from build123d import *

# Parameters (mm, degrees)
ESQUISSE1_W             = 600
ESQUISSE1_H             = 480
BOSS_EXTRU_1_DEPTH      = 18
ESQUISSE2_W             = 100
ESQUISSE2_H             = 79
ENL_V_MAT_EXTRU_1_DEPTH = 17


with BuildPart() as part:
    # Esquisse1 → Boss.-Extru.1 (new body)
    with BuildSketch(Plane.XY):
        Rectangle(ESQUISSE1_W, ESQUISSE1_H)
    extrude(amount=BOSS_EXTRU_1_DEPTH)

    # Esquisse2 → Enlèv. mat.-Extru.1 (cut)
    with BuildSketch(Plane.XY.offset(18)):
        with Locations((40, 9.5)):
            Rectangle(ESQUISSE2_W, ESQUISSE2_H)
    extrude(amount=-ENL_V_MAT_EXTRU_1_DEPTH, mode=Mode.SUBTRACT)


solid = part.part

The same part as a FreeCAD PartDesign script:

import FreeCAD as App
import Part
import Sketcher
from FreeCAD import Vector


def add_polygon(sketch, points):
    """Adds a closed chain of lines whose ends are joined by coincident constraints."""
    first, n = sketch.GeometryCount, len(points)
    for a, b in zip(points, points[1:] + points[:1]):
        sketch.addGeometry(Part.LineSegment(App.Vector(*a, 0), App.Vector(*b, 0)), False)
    for i in range(n):
        sketch.addConstraint(Sketcher.Constraint("Coincident", first + i, 2, first + (i + 1) % n, 1))

doc = App.newDocument("Part")
body = doc.addObject("PartDesign::Body", "Body")

sketch1 = doc.addObject("Sketcher::SketchObject", "Sketch")
body.addObject(sketch1)
sketch1.AttachmentSupport = (doc.XY_Plane, [""])
sketch1.MapMode = "FlatFace"
add_polygon(sketch1, [(-300, 240), (-300, -240), (300, -240), (300, 240)])
sketch1.addConstraint([
    Sketcher.Constraint("Vertical", 0),
    Sketcher.Constraint("Horizontal", 1),
    Sketcher.Constraint("Vertical", 2),
    Sketcher.Constraint("Horizontal", 3),
    Sketcher.Constraint("Symmetric", 0, 2, 2, 2, -1, 1),
    Sketcher.Constraint("DistanceX", 1, 1, 1, 2, 600.0),
    Sketcher.Constraint("DistanceY", 0, 2, 0, 1, 480.0),
])
pad1 = doc.addObject("PartDesign::Pad", "Pad")
body.addObject(pad1)
pad1.Profile = sketch1
pad1.Length = 18

sketch2 = doc.addObject("Sketcher::SketchObject", "Sketch001")
body.addObject(sketch2)
sketch2.AttachmentSupport = (doc.XY_Plane, [""])
sketch2.MapMode = "FlatFace"
sketch2.AttachmentOffset = App.Placement(Vector(0, 0, 18), App.Rotation())
add_polygon(sketch2, [(-10, 49), (-10, -30), (90, -30), (90, 49)])
sketch2.addConstraint([
    Sketcher.Constraint("Vertical", 0),
    Sketcher.Constraint("Horizontal", 1),
    Sketcher.Constraint("Vertical", 2),
    Sketcher.Constraint("Horizontal", 3),
    Sketcher.Constraint("DistanceX", 1, 1, 1, 2, 100.0),
    Sketcher.Constraint("DistanceY", 0, 2, 0, 1, 79.0),
    Sketcher.Constraint("DistanceX", 0, 2, -1, 1, 10.0),
    Sketcher.Constraint("DistanceY", 0, 2, -1, 1, 30.0),
])
pocket1 = doc.addObject("PartDesign::Pocket", "Pocket")
body.addObject(pocket1)
pocket1.Profile = sketch2
pocket1.Length = 17

doc.recompute()
